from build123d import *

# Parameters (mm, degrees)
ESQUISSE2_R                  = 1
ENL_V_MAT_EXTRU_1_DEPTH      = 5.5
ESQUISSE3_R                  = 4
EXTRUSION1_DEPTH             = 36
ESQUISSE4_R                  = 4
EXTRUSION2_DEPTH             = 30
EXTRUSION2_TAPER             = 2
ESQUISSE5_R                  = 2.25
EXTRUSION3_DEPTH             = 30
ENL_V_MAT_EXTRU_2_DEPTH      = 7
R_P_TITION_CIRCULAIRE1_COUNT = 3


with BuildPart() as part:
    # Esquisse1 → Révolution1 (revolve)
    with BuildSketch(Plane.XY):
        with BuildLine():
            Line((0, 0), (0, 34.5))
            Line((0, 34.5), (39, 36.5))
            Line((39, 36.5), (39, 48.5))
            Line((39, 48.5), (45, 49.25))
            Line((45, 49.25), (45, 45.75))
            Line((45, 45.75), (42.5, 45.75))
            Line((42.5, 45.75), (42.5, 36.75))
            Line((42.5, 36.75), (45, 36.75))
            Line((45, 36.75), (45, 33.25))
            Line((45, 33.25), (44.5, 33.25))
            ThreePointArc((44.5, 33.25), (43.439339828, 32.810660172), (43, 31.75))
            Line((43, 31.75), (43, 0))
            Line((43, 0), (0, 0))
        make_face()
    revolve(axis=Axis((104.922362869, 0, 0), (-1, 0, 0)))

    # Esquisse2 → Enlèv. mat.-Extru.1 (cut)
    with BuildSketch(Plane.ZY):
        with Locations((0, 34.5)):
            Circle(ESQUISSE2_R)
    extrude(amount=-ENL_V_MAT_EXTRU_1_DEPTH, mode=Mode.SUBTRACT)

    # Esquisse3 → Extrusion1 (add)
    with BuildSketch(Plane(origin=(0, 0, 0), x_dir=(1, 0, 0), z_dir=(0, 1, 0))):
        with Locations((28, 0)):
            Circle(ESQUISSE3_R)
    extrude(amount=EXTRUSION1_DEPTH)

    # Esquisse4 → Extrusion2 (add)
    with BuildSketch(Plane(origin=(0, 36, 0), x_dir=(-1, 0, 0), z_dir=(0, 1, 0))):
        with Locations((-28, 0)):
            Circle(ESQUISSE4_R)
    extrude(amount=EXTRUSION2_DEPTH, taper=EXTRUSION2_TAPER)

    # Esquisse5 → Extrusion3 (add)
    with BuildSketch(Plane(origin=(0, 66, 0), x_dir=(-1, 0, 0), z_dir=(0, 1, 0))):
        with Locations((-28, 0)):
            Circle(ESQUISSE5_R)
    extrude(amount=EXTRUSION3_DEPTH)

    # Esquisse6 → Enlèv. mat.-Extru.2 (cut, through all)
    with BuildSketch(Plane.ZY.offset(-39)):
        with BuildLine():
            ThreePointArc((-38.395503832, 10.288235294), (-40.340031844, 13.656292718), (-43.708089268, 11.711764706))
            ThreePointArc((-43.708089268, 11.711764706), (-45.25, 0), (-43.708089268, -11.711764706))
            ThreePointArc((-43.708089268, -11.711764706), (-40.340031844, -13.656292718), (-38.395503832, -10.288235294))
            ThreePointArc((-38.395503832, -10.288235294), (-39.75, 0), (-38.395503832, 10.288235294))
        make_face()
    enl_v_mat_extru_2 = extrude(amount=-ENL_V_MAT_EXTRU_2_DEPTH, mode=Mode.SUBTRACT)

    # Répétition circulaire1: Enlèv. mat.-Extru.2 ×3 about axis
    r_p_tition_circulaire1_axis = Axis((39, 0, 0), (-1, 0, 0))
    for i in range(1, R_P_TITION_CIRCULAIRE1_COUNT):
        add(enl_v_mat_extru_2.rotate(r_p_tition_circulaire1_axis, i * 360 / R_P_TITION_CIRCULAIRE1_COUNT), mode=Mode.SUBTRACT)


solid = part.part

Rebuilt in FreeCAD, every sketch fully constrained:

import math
import FreeCAD as App
import Part
import Sketcher

V = App.Vector
Q = App.Units.Quantity

doc = App.newDocument("Part")
body = doc.addObject("PartDesign::Body", "Body")

sketch1 = doc.addObject("Sketcher::SketchObject", "Sketch")
body.addObject(sketch1)
sketch1.AttachmentSupport = (doc.XY_Plane, [""])
sketch1.MapMode = "FlatFace"
sketch1.addGeometry([
    Part.LineSegment(V(0, 34.5, 0), V(0, 0, 0)),
    Part.LineSegment(V(0, 0, 0), V(43, 0, 0)),
    Part.LineSegment(V(43, 0, 0), V(43, 31.8, 0)),
    Part.ArcOfCircle(Part.Circle(V(44.5, 31.8, 0), V(0, 0, 1), 1.5), math.radians(90), math.radians(180)),
    Part.LineSegment(V(44.5, 33.2, 0), V(45, 33.2, 0)),
    Part.LineSegment(V(45, 33.2, 0), V(45, 36.8, 0)),
    Part.LineSegment(V(45, 36.8, 0), V(42.5, 36.8, 0)),
    Part.LineSegment(V(42.5, 36.8, 0), V(42.5, 45.8, 0)),
    Part.LineSegment(V(42.5, 45.8, 0), V(45, 45.8, 0)),
    Part.LineSegment(V(45, 45.8, 0), V(45, 49.2, 0)),
    Part.LineSegment(V(45, 49.2, 0), V(39, 48.5, 0)),
    Part.LineSegment(V(39, 48.5, 0), V(39, 36.5, 0)),
    Part.LineSegment(V(39, 36.5, 0), V(0, 34.5, 0)),
], False)
sketch1.addConstraint([
    Sketcher.Constraint("Coincident", 0, 2, 1, 1),
    Sketcher.Constraint("Coincident", 1, 2, 2, 1),
    Sketcher.Constraint("Tangent", 2, 2, 3, 2),
    Sketcher.Constraint("Tangent", 3, 1, 4, 1),
    Sketcher.Constraint("Coincident", 4, 2, 5, 1),
    Sketcher.Constraint("Coincident", 5, 2, 6, 1),
    Sketcher.Constraint("Coincident", 6, 2, 7, 1),
    Sketcher.Constraint("Coincident", 7, 2, 8, 1),
    Sketcher.Constraint("Coincident", 8, 2, 9, 1),
    Sketcher.Constraint("Coincident", 9, 2, 10, 1),
    Sketcher.Constraint("Coincident", 10, 2, 11, 1),
    Sketcher.Constraint("Coincident", 11, 2, 12, 1),
    Sketcher.Constraint("Coincident", 12, 2, 0, 1),
    Sketcher.Constraint("Vertical", 0),
    Sketcher.Constraint("Horizontal", 1),
    Sketcher.Constraint("Vertical", 2),
    Sketcher.Constraint("Horizontal", 4),
    Sketcher.Constraint("Vertical", 5),
    Sketcher.Constraint("Horizontal", 6),
    Sketcher.Constraint("Vertical", 7),
    Sketcher.Constraint("Horizontal", 8),
    Sketcher.Constraint("Vertical", 9),
    Sketcher.Constraint("Vertical", 11),
    Sketcher.Constraint("Coincident", 0, 2, -1, 1),
    Sketcher.Constraint("Vertical", 5, 2, 8, 2),
    Sketcher.Constraint("Equal", 5, 9),
    Sketcher.Constraint("Radius", 3, Q("1.5 mm")),
    Sketcher.Constraint("DistanceX", 1, 1, 1, 2, Q("43 mm")),
    Sketcher.Constraint("DistanceY", 7, 1, 7, 2, Q("9 mm")),
    Sketcher.Constraint("DistanceY", 11, 2, 11, 1, Q("12 mm")),
    Sketcher.Constraint("DistanceX", 4, 1, 4, 2, Q("0.5 mm")),
    Sketcher.Constraint("DistanceX", 6, 2, 6, 1, Q("2.5 mm")),
    Sketcher.Constraint("DistanceY", 0, 2, 0, 1, Q("34.5 mm")),
    Sketcher.Constraint("DistanceY", 5, 1, 5, 2, Q("3.5 mm")),
    Sketcher.Constraint("DistanceX", -1, 1, 10, 2, Q("39 mm")),
    Sketcher.Constraint("DistanceY", 12, 2, 11, 2, Q("2 mm")),
    Sketcher.Constraint("DistanceY", 2, 1, 2, 2, Q("31.75 mm")),
])
revolution = doc.addObject("PartDesign::Revolution", "Revolution")
body.addObject(revolution)
revolution.Profile = sketch1
revolution.ReferenceAxis = (sketch1, ["H_Axis"])
revolution.Angle = 360

sketch2 = doc.addObject("Sketcher::SketchObject", "Sketch001")
body.addObject(sketch2)
sketch2.AttachmentSupport = (doc.YZ_Plane, [""])
sketch2.MapMode = "FlatFace"
sketch2.addGeometry(Part.Circle(V(34.5, 0, 0), V(0, 0, 1), 1), False)
sketch2.addConstraint([
    Sketcher.Constraint("PointOnObject", 0, 3, -1),
    Sketcher.Constraint("Diameter", 0, Q("2 mm")),
    Sketcher.Constraint("DistanceX", -1, 1, 0, 3, Q("34.5 mm")),
])
pocket1 = doc.addObject("PartDesign::Pocket", "Pocket")
body.addObject(pocket1)
pocket1.Profile = sketch2
pocket1.Length = 5.5
pocket1.Reversed = True

sketch3 = doc.addObject("Sketcher::SketchObject", "Sketch002")
body.addObject(sketch3)
sketch3.AttachmentSupport = (doc.XZ_Plane, [""])
sketch3.MapMode = "FlatFace"
sketch3.addGeometry(Part.Circle(V(28, 0, 0), V(0, 0, 1), 4), False)
sketch3.addConstraint([
    Sketcher.Constraint("PointOnObject", 0, 3, -1),
    Sketcher.Constraint("Diameter", 0, Q("8 mm")),
    Sketcher.Constraint("DistanceX", -1, 1, 0, 3, Q("28 mm")),
])
pad1 = doc.addObject("PartDesign::Pad", "Pad")
body.addObject(pad1)
pad1.Profile = sketch3
pad1.Length = 36
pad1.Reversed = True

sketch4 = doc.addObject("Sketcher::SketchObject", "Sketch003")
body.addObject(sketch4)
sketch4.AttachmentSupport = (doc.XZ_Plane, [""])
sketch4.MapMode = "FlatFace"
sketch4.AttachmentOffset = App.Placement(V(0, 0, -36), App.Rotation())
sketch4.addGeometry(Part.Circle(V(28, 0, 0), V(0, 0, 1), 4), False)
sketch4.addConstraint([
    Sketcher.Constraint("PointOnObject", 0, 3, -1),
    Sketcher.Constraint("Diameter", 0, Q("8 mm")),
    Sketcher.Constraint("DistanceX", -1, 1, 0, 3, Q("28 mm")),
])
pad2 = doc.addObject("PartDesign::Pad", "Pad001")
body.addObject(pad2)
pad2.Profile = sketch4
pad2.Length = 30
pad2.Reversed = True
pad2.TaperAngle = -2

sketch5 = doc.addObject("Sketcher::SketchObject", "Sketch004")
body.addObject(sketch5)
sketch5.AttachmentSupport = (doc.XZ_Plane, [""])
sketch5.MapMode = "FlatFace"
sketch5.AttachmentOffset = App.Placement(V(0, 0, -66), App.Rotation())
sketch5.addGeometry(Part.Circle(V(28, 0, 0), V(0, 0, 1), 2.2), False)
sketch5.addConstraint([
    Sketcher.Constraint("PointOnObject", 0, 3, -1),
    Sketcher.Constraint("Diameter", 0, Q("4.5 mm")),
    Sketcher.Constraint("DistanceX", -1, 1, 0, 3, Q("28 mm")),
])
pad3 = doc.addObject("PartDesign::Pad", "Pad002")
body.addObject(pad3)
pad3.Profile = sketch5
pad3.Length = 30
pad3.Reversed = True

sketch6 = doc.addObject("Sketcher::SketchObject", "Sketch005")
body.addObject(sketch6)
sketch6.AttachmentSupport = (doc.YZ_Plane, [""])
sketch6.MapMode = "FlatFace"
sketch6.AttachmentOffset = App.Placement(V(0, 0, 39), App.Rotation())
sketch6.addGeometry([
    Part.ArcOfCircle(Part.Circle(V(11, -41.1, 0), V(0, 0, 1), 2.8), math.radians(-75), math.radians(105)),
    Part.ArcOfCircle(Part.Circle(V(0, 0, 0), V(0, 0, 1), 45.2), math.radians(-105), math.radians(-75)),
    Part.ArcOfCircle(Part.Circle(V(-11, -41.1, 0), V(0, 0, 1), 2.8), math.radians(75), math.radians(255)),
    Part.ArcOfCircle(Part.Circle(V(0, 0, 0), V(0, 0, 1), 39.7), math.radians(-105), math.radians(-75)),
], False)
sketch6.addConstraint([
    Sketcher.Constraint("Tangent", 0, 1, 1, 2),
    Sketcher.Constraint("Tangent", 1, 1, 2, 2),
    Sketcher.Constraint("Tangent", 2, 1, 3, 1),
    Sketcher.Constraint("Tangent", 3, 2, 0, 2),
    Sketcher.Constraint("Coincident", 1, 3, -1, 1),
    Sketcher.Constraint("Coincident", 3, 3, -1, 1),
    Sketcher.Constraint("Horizontal", 0, 3, 2, 3),
    Sketcher.Constraint("Radius", 0, Q("2.75 mm")),
    Sketcher.Constraint("Radius", 1, Q("45.25 mm")),
    Sketcher.Constraint("DistanceX", -1, 1, 0, 3, Q("11 mm")),
])
pocket2 = doc.addObject("PartDesign::Pocket", "Pocket001")
body.addObject(pocket2)
pocket2.Profile = sketch6
pocket2.Type = "ThroughAll"
pocket2.Reversed = True
doc.recompute()

polarpattern = doc.addObject("PartDesign::PolarPattern", "PolarPattern")
body.addObject(polarpattern)
polarpattern.Originals = [pocket2]
polarpattern.Axis = (doc.X_Axis, [""])
polarpattern.Angle = 360
polarpattern.Occurrences = 3
body.Tip = polarpattern

doc.recompute()
